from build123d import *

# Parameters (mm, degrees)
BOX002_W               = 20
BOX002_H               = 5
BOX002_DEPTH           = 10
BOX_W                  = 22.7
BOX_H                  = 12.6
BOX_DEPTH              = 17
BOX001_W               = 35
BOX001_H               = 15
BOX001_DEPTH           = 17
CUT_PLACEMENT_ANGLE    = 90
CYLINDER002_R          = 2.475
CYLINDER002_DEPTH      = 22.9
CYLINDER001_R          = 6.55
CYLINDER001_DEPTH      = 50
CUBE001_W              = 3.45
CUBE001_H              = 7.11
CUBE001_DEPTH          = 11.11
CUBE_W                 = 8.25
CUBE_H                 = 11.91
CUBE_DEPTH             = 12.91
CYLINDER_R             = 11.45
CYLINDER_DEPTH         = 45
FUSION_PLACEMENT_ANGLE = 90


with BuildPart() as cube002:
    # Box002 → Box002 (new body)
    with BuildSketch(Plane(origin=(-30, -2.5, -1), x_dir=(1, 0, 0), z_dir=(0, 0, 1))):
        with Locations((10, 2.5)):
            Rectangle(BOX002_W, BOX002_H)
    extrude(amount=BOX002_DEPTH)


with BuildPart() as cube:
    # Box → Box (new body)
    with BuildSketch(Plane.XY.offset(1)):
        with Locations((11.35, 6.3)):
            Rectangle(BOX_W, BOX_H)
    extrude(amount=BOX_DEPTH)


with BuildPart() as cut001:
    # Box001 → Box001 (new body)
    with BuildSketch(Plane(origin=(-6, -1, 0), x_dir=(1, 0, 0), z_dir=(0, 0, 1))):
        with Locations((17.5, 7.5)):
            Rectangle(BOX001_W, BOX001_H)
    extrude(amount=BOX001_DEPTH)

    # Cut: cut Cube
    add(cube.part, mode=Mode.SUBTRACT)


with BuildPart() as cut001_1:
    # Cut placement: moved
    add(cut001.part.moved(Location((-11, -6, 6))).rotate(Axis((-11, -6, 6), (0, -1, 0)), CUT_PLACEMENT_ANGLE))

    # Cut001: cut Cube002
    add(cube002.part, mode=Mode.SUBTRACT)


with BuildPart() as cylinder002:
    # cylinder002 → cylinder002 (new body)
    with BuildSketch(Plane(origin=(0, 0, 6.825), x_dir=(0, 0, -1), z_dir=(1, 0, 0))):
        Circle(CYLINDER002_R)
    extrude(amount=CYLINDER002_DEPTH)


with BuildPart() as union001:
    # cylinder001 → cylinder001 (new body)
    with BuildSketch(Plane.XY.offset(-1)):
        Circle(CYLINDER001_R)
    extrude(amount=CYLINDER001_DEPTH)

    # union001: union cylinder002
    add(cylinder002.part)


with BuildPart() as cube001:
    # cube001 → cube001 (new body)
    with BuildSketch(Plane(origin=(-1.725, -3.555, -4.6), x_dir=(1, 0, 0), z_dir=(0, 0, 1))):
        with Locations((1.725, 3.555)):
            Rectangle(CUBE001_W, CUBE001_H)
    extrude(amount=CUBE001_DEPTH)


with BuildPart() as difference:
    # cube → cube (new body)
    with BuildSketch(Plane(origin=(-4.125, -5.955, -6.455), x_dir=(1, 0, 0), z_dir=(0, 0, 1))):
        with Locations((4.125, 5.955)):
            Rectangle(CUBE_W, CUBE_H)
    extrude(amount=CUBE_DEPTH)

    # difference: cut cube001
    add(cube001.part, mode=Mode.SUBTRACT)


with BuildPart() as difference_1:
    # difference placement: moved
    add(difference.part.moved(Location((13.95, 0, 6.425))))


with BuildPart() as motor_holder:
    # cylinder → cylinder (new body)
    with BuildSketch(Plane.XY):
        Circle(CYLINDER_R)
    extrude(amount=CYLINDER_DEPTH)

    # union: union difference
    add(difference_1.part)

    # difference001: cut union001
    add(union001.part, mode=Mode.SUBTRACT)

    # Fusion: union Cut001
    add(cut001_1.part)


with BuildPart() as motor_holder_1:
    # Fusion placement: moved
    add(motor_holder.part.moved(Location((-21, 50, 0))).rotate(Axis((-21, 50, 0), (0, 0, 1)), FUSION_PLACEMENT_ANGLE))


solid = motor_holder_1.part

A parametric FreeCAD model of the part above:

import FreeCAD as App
import Part
import Sketcher
from FreeCAD import Vector
Q = App.Units.Quantity


def add_polygon(sketch, points):
    """Adds a closed chain of lines whose ends are joined by coincident constraints."""
    first, n = sketch.GeometryCount, len(points)
    for a, b in zip(points, points[1:] + points[:1]):
        sketch.addGeometry(Part.LineSegment(App.Vector(*a, 0), App.Vector(*b, 0)), False)
    for i in range(n):
        sketch.addConstraint(Sketcher.Constraint("Coincident", first + i, 2, first + (i + 1) % n, 1))

doc = App.newDocument("Part")
body = doc.addObject("PartDesign::Body", "Body")

# Sketch on XY plane
sketch1 = body.newObject("Sketcher::SketchObject", "Sketch")
sketch1.AttachmentSupport = (doc.getObject("XY_Plane"), [""])
sketch1.MapMode = "FlatFace"
sketch1.AttachmentOffset = App.Placement(Vector(0, 0, -1), App.Rotation())
add_polygon(sketch1, [(-30, 2), (-30, -2), (-10, -2), (-10, 2)])  # lines 0-3
sketch1.addConstraint([
    Sketcher.Constraint("Vertical", 0),
    Sketcher.Constraint("Horizontal", 1),
    Sketcher.Constraint("Vertical", 2),
    Sketcher.Constraint("Horizontal", 3),
    Sketcher.Constraint("DistanceX", 1, 1, 1, 2, Q("20 mm")),
    Sketcher.Constraint("DistanceY", 0, 2, 0, 1, Q("5 mm")),
    Sketcher.Constraint("DistanceX", 0, 2, -1, 1, Q("30 mm")),
    Sketcher.Constraint("DistanceY", 0, 2, -1, 1, Q("2.5 mm")),
])
pad1 = body.newObject("PartDesign::Pad", "Pad")
pad1.Profile = sketch1
pad1.Length = 10
body2 = doc.addObject("PartDesign::Body", "Body001")

# Sketch on XY plane
sketch2 = body2.newObject("Sketcher::SketchObject", "Sketch001")
sketch2.AttachmentSupport = (doc.getObject("XY_Plane001"), [""])
sketch2.MapMode = "FlatFace"
sketch2.AttachmentOffset = App.Placement(Vector(0, 0, 1), App.Rotation())
add_polygon(sketch2, [(0, 13), (0, 0), (23, 0), (23, 13)])  # lines 0-3
sketch2.addConstraint([
    Sketcher.Constraint("Vertical", 0),
    Sketcher.Constraint("Horizontal", 1),
    Sketcher.Constraint("Vertical", 2),
    Sketcher.Constraint("Horizontal", 3),
    Sketcher.Constraint("Coincident", 0, 2, -1, 1),
    Sketcher.Constraint("DistanceX", 1, 1, 1, 2, Q("22.7 mm")),
    Sketcher.Constraint("DistanceY", 0, 2, 0, 1, Q("12.6 mm")),
])
pad2 = body2.newObject("PartDesign::Pad", "Pad001")
pad2.Profile = sketch2
pad2.Length = 17
body3 = doc.addObject("PartDesign::Body", "Body002")

# Sketch on XY plane
sketch3 = body3.newObject("Sketcher::SketchObject", "Sketch002")
sketch3.AttachmentSupport = (doc.getObject("XY_Plane002"), [""])
sketch3.MapMode = "FlatFace"
add_polygon(sketch3, [(-6, 14), (-6, -1), (29, -1), (29, 14)])  # lines 0-3
sketch3.addConstraint([
    Sketcher.Constraint("Vertical", 0),
    Sketcher.Constraint("Horizontal", 1),
    Sketcher.Constraint("Vertical", 2),
    Sketcher.Constraint("Horizontal", 3),
    Sketcher.Constraint("DistanceX", 1, 1, 1, 2, Q("35 mm")),
    Sketcher.Constraint("DistanceY", 0, 2, 0, 1, Q("15 mm")),
    Sketcher.Constraint("DistanceX", 0, 2, -1, 1, Q("6 mm")),
    Sketcher.Constraint("DistanceY", 0, 2, -1, 1, Q("1 mm")),
])
pad3 = body3.newObject("PartDesign::Pad", "Pad002")
pad3.Profile = sketch3
pad3.Length = 17
doc.recompute()

boolean = body3.newObject("PartDesign::Boolean", "Boolean")
boolean.Type = "Cut"
boolean.addObjects([body2])
body4 = doc.addObject("PartDesign::Body", "Body003")
doc.recompute()

body3.Placement = App.Placement(Vector(-11, -6, 6), App.Rotation(Vector(0, -1, 0), 90))
boolean2 = body4.newObject("PartDesign::Boolean", "Boolean001")
boolean2.Type = "Fuse"
boolean2.addObjects([body3])
doc.recompute()

boolean3 = body4.newObject("PartDesign::Boolean", "Boolean002")
boolean3.Type = "Cut"
boolean3.addObjects([body])
body5 = doc.addObject("PartDesign::Body", "Body004")

# Sketch on YZ plane
sketch4 = body5.newObject("Sketcher::SketchObject", "Sketch003")
sketch4.AttachmentSupport = (doc.getObject("YZ_Plane004"), [""])
sketch4.MapMode = "FlatFace"
sketch4.addGeometry(Part.Circle(Vector(0, 6.8, 0), Vector(0, 0, 1), 2.5), False)
sketch4.addConstraint([
    Sketcher.Constraint("PointOnObject", 0, 3, -2),
    Sketcher.Constraint("Diameter", 0, Q("4.95 mm")),
    Sketcher.Constraint("DistanceY", -1, 1, 0, 3, Q("6.825 mm")),
])
pad4 = body5.newObject("PartDesign::Pad", "Pad003")
pad4.Profile = sketch4
pad4.Length = 22.9
body6 = doc.addObject("PartDesign::Body", "Body005")

# Sketch on XY plane
sketch5 = body6.newObject("Sketcher::SketchObject", "Sketch004")
sketch5.AttachmentSupport = (doc.getObject("XY_Plane005"), [""])
sketch5.MapMode = "FlatFace"
sketch5.AttachmentOffset = App.Placement(Vector(0, 0, -1), App.Rotation())
sketch5.addGeometry(Part.Circle(Vector(0, 0, 0), Vector(0, 0, 1), 7), False)
sketch5.addConstraint([
    Sketcher.Constraint("Coincident", 0, 3, -1, 1),
    Sketcher.Constraint("Diameter", 0, Q("13.1 mm")),
])
pad5 = body6.newObject("PartDesign::Pad", "Pad004")
pad5.Profile = sketch5
pad5.Length = 50
doc.recompute()

boolean4 = body6.newObject("PartDesign::Boolean", "Boolean003")
boolean4.Type = "Fuse"
boolean4.addObjects([body5])
body7 = doc.addObject("PartDesign::Body", "Body006")

# Sketch on XY plane
sketch6 = body7.newObject("Sketcher::SketchObject", "Sketch005")
sketch6.AttachmentSupport = (doc.getObject("XY_Plane006"), [""])
sketch6.MapMode = "FlatFace"
sketch6.AttachmentOffset = App.Placement(Vector(0, 0, -4.6), App.Rotation())
add_polygon(sketch6, [(-1.7, 3.6), (-1.7, -3.6), (1.7, -3.6), (1.7, 3.6)])  # lines 0-3
sketch6.addConstraint([
    Sketcher.Constraint("Vertical", 0),
    Sketcher.Constraint("Horizontal", 1),
    Sketcher.Constraint("Vertical", 2),
    Sketcher.Constraint("Horizontal", 3),
    Sketcher.Constraint("Symmetric", 0, 2, 2, 2, -1, 1),
    Sketcher.Constraint("DistanceX", 1, 1, 1, 2, Q("3.45 mm")),
    Sketcher.Constraint("DistanceY", 0, 2, 0, 1, Q("7.11 mm")),
])
pad6 = body7.newObject("PartDesign::Pad", "Pad005")
pad6.Profile = sketch6
pad6.Length = 11.11
body8 = doc.addObject("PartDesign::Body", "Body007")

# Sketch on XY plane
sketch7 = body8.newObject("Sketcher::SketchObject", "Sketch006")
sketch7.AttachmentSupport = (doc.getObject("XY_Plane007"), [""])
sketch7.MapMode = "FlatFace"
sketch7.AttachmentOffset = App.Placement(Vector(0, 0, -6.455), App.Rotation())
add_polygon(sketch7, [(-4, 6), (-4, -6), (4, -6), (4, 6)])  # lines 0-3
sketch7.addConstraint([
    Sketcher.Constraint("Vertical", 0),
    Sketcher.Constraint("Horizontal", 1),
    Sketcher.Constraint("Vertical", 2),
    Sketcher.Constraint("Horizontal", 3),
    Sketcher.Constraint("Symmetric", 0, 2, 2, 2, -1, 1),
    Sketcher.Constraint("DistanceX", 1, 1, 1, 2, Q("8.25 mm")),
    Sketcher.Constraint("DistanceY", 0, 2, 0, 1, Q("11.91 mm")),
])
pad7 = body8.newObject("PartDesign::Pad", "Pad006")
pad7.Profile = sketch7
pad7.Length = 12.91
doc.recompute()

boolean5 = body8.newObject("PartDesign::Boolean", "Boolean004")
boolean5.Type = "Cut"
boolean5.addObjects([body7])
body9 = doc.addObject("PartDesign::Body", "Body008")
doc.recompute()

body8.Placement = App.Placement(Vector(13.95, 0, 6.425), App.Rotation(Vector(0, 0, 1), 0))
boolean6 = body9.newObject("PartDesign::Boolean", "Boolean005")
boolean6.Type = "Fuse"
boolean6.addObjects([body8])
body10 = doc.addObject("PartDesign::Body", "Body009")

# Sketch on XY plane
sketch8 = body10.newObject("Sketcher::SketchObject", "Sketch007")
sketch8.AttachmentSupport = (doc.getObject("XY_Plane009"), [""])
sketch8.MapMode = "FlatFace"
sketch8.addGeometry(Part.Circle(Vector(0, 0, 0), Vector(0, 0, 1), 11), False)
sketch8.addConstraint([
    Sketcher.Constraint("Coincident", 0, 3, -1, 1),
    Sketcher.Constraint("Diameter", 0, Q("22.9 mm")),
])
pad8 = body10.newObject("PartDesign::Pad", "Pad007")
pad8.Profile = sketch8
pad8.Length = 45
doc.recompute()

boolean7 = body10.newObject("PartDesign::Boolean", "Boolean006")
boolean7.Type = "Fuse"
boolean7.addObjects([body9])
doc.recompute()

boolean8 = body10.newObject("PartDesign::Boolean", "Boolean007")
boolean8.Type = "Cut"
boolean8.addObjects([body6])
doc.recompute()

boolean9 = body10.newObject("PartDesign::Boolean", "Boolean008")
boolean9.Type = "Fuse"
boolean9.addObjects([body4])
body11 = doc.addObject("PartDesign::Body", "Body010")
doc.recompute()

body10.Placement = App.Placement(Vector(-21, 50, 0), App.Rotation(Vector(0, 0, 1), 90))
boolean10 = body11.newObject("PartDesign::Boolean", "Boolean009")
boolean10.Type = "Fuse"
boolean10.addObjects([body10])

doc.recompute()
